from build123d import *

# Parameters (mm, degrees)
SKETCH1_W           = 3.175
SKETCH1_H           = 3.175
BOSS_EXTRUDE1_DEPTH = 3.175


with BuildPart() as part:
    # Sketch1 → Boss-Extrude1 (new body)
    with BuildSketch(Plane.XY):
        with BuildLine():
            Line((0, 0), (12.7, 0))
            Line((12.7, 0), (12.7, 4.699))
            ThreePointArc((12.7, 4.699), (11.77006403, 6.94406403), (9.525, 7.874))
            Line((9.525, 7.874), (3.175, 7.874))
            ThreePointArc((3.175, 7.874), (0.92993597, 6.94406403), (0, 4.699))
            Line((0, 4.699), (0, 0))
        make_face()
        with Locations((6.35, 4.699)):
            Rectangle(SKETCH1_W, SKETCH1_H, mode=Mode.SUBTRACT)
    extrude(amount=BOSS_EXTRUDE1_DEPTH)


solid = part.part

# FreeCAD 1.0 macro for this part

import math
import FreeCAD as App
import Part
import Sketcher
Q = App.Units.Quantity

doc = App.newDocument("Part")
body = doc.addObject("PartDesign::Body", "Body")

# Sketch on XY plane
sketch1 = doc.addObject("Sketcher::SketchObject", "Sketch")
body.addObject(sketch1)
sketch1.AttachmentSupport = (doc.XY_Plane, [""])
sketch1.MapMode = "FlatFace"
sketch1.addGeometry([
    Part.LineSegment(App.Vector(0, 0, 0), App.Vector(12.7, 0, 0)),  # 0
    Part.LineSegment(App.Vector(12.7, 0, 0), App.Vector(12.7, 4.7, 0)),  # 1
    Part.ArcOfCircle(Part.Circle(App.Vector(9.5, 4.7, 0), App.Vector(0, 0, 1), 3.2), math.radians(0), math.radians(90)),  # 2
    Part.LineSegment(App.Vector(9.5, 7.9, 0), App.Vector(3.2, 7.9, 0)),  # 3
    Part.ArcOfCircle(Part.Circle(App.Vector(3.2, 4.7, 0), App.Vector(0, 0, 1), 3.2), math.radians(90), math.radians(180)),  # 4
    Part.LineSegment(App.Vector(0, 4.7, 0), App.Vector(0, 0, 0)),  # 5
    Part.LineSegment(App.Vector(7.9, 3.1, 0), App.Vector(4.8, 3.1, 0)),  # 6
    Part.LineSegment(App.Vector(4.8, 3.1, 0), App.Vector(4.8, 6.3, 0)),  # 7
    Part.LineSegment(App.Vector(4.8, 6.3, 0), App.Vector(7.9, 6.3, 0)),  # 8
    Part.LineSegment(App.Vector(7.9, 6.3, 0), App.Vector(7.9, 3.1, 0)),  # 9
], False)
sketch1.addConstraint([
    Sketcher.Constraint("Coincident", 0, 2, 1, 1),
    Sketcher.Constraint("Tangent", 1, 2, 2, 1),
    Sketcher.Constraint("Tangent", 2, 2, 3, 1),
    Sketcher.Constraint("Tangent", 3, 2, 4, 1),
    Sketcher.Constraint("Tangent", 4, 2, 5, 1),
    Sketcher.Constraint("Coincident", 5, 2, 0, 1),
    Sketcher.Constraint("Coincident", 6, 2, 7, 1),
    Sketcher.Constraint("Coincident", 7, 2, 8, 1),
    Sketcher.Constraint("Coincident", 8, 2, 9, 1),
    Sketcher.Constraint("Coincident", 9, 2, 6, 1),
    Sketcher.Constraint("Horizontal", 0),
    Sketcher.Constraint("Vertical", 1),
    Sketcher.Constraint("Horizontal", 3),
    Sketcher.Constraint("Vertical", 5),
    Sketcher.Constraint("Horizontal", 6),
    Sketcher.Constraint("Vertical", 7),
    Sketcher.Constraint("Horizontal", 8),
    Sketcher.Constraint("Vertical", 9),
    Sketcher.Constraint("Coincident", 5, 2, -1, 1),
    Sketcher.Constraint("Equal", 2, 4),
    Sketcher.Constraint("Equal", 8, 7),
    Sketcher.Constraint("DistanceX", 0, 1, 0, 2, Q("0.5 in")),
    Sketcher.Constraint("Radius", 2, Q("0.125 in")),
    Sketcher.Constraint("DistanceX", 6, 2, 6, 1, Q("0.125 in")),
    Sketcher.Constraint("DistanceY", 1, 1, 1, 2, Q("0.185 in")),
    Sketcher.Constraint("DistanceX", -1, 1, 6, 2, Q("0.1875 in")),
    Sketcher.Constraint("DistanceY", 6, 2, 4, 3, Q("0.0625 in")),
])
pad1 = doc.addObject("PartDesign::Pad", "Pad")
body.addObject(pad1)
pad1.Profile = sketch1
pad1.Length = Q("0.125 in")

doc.recompute()
